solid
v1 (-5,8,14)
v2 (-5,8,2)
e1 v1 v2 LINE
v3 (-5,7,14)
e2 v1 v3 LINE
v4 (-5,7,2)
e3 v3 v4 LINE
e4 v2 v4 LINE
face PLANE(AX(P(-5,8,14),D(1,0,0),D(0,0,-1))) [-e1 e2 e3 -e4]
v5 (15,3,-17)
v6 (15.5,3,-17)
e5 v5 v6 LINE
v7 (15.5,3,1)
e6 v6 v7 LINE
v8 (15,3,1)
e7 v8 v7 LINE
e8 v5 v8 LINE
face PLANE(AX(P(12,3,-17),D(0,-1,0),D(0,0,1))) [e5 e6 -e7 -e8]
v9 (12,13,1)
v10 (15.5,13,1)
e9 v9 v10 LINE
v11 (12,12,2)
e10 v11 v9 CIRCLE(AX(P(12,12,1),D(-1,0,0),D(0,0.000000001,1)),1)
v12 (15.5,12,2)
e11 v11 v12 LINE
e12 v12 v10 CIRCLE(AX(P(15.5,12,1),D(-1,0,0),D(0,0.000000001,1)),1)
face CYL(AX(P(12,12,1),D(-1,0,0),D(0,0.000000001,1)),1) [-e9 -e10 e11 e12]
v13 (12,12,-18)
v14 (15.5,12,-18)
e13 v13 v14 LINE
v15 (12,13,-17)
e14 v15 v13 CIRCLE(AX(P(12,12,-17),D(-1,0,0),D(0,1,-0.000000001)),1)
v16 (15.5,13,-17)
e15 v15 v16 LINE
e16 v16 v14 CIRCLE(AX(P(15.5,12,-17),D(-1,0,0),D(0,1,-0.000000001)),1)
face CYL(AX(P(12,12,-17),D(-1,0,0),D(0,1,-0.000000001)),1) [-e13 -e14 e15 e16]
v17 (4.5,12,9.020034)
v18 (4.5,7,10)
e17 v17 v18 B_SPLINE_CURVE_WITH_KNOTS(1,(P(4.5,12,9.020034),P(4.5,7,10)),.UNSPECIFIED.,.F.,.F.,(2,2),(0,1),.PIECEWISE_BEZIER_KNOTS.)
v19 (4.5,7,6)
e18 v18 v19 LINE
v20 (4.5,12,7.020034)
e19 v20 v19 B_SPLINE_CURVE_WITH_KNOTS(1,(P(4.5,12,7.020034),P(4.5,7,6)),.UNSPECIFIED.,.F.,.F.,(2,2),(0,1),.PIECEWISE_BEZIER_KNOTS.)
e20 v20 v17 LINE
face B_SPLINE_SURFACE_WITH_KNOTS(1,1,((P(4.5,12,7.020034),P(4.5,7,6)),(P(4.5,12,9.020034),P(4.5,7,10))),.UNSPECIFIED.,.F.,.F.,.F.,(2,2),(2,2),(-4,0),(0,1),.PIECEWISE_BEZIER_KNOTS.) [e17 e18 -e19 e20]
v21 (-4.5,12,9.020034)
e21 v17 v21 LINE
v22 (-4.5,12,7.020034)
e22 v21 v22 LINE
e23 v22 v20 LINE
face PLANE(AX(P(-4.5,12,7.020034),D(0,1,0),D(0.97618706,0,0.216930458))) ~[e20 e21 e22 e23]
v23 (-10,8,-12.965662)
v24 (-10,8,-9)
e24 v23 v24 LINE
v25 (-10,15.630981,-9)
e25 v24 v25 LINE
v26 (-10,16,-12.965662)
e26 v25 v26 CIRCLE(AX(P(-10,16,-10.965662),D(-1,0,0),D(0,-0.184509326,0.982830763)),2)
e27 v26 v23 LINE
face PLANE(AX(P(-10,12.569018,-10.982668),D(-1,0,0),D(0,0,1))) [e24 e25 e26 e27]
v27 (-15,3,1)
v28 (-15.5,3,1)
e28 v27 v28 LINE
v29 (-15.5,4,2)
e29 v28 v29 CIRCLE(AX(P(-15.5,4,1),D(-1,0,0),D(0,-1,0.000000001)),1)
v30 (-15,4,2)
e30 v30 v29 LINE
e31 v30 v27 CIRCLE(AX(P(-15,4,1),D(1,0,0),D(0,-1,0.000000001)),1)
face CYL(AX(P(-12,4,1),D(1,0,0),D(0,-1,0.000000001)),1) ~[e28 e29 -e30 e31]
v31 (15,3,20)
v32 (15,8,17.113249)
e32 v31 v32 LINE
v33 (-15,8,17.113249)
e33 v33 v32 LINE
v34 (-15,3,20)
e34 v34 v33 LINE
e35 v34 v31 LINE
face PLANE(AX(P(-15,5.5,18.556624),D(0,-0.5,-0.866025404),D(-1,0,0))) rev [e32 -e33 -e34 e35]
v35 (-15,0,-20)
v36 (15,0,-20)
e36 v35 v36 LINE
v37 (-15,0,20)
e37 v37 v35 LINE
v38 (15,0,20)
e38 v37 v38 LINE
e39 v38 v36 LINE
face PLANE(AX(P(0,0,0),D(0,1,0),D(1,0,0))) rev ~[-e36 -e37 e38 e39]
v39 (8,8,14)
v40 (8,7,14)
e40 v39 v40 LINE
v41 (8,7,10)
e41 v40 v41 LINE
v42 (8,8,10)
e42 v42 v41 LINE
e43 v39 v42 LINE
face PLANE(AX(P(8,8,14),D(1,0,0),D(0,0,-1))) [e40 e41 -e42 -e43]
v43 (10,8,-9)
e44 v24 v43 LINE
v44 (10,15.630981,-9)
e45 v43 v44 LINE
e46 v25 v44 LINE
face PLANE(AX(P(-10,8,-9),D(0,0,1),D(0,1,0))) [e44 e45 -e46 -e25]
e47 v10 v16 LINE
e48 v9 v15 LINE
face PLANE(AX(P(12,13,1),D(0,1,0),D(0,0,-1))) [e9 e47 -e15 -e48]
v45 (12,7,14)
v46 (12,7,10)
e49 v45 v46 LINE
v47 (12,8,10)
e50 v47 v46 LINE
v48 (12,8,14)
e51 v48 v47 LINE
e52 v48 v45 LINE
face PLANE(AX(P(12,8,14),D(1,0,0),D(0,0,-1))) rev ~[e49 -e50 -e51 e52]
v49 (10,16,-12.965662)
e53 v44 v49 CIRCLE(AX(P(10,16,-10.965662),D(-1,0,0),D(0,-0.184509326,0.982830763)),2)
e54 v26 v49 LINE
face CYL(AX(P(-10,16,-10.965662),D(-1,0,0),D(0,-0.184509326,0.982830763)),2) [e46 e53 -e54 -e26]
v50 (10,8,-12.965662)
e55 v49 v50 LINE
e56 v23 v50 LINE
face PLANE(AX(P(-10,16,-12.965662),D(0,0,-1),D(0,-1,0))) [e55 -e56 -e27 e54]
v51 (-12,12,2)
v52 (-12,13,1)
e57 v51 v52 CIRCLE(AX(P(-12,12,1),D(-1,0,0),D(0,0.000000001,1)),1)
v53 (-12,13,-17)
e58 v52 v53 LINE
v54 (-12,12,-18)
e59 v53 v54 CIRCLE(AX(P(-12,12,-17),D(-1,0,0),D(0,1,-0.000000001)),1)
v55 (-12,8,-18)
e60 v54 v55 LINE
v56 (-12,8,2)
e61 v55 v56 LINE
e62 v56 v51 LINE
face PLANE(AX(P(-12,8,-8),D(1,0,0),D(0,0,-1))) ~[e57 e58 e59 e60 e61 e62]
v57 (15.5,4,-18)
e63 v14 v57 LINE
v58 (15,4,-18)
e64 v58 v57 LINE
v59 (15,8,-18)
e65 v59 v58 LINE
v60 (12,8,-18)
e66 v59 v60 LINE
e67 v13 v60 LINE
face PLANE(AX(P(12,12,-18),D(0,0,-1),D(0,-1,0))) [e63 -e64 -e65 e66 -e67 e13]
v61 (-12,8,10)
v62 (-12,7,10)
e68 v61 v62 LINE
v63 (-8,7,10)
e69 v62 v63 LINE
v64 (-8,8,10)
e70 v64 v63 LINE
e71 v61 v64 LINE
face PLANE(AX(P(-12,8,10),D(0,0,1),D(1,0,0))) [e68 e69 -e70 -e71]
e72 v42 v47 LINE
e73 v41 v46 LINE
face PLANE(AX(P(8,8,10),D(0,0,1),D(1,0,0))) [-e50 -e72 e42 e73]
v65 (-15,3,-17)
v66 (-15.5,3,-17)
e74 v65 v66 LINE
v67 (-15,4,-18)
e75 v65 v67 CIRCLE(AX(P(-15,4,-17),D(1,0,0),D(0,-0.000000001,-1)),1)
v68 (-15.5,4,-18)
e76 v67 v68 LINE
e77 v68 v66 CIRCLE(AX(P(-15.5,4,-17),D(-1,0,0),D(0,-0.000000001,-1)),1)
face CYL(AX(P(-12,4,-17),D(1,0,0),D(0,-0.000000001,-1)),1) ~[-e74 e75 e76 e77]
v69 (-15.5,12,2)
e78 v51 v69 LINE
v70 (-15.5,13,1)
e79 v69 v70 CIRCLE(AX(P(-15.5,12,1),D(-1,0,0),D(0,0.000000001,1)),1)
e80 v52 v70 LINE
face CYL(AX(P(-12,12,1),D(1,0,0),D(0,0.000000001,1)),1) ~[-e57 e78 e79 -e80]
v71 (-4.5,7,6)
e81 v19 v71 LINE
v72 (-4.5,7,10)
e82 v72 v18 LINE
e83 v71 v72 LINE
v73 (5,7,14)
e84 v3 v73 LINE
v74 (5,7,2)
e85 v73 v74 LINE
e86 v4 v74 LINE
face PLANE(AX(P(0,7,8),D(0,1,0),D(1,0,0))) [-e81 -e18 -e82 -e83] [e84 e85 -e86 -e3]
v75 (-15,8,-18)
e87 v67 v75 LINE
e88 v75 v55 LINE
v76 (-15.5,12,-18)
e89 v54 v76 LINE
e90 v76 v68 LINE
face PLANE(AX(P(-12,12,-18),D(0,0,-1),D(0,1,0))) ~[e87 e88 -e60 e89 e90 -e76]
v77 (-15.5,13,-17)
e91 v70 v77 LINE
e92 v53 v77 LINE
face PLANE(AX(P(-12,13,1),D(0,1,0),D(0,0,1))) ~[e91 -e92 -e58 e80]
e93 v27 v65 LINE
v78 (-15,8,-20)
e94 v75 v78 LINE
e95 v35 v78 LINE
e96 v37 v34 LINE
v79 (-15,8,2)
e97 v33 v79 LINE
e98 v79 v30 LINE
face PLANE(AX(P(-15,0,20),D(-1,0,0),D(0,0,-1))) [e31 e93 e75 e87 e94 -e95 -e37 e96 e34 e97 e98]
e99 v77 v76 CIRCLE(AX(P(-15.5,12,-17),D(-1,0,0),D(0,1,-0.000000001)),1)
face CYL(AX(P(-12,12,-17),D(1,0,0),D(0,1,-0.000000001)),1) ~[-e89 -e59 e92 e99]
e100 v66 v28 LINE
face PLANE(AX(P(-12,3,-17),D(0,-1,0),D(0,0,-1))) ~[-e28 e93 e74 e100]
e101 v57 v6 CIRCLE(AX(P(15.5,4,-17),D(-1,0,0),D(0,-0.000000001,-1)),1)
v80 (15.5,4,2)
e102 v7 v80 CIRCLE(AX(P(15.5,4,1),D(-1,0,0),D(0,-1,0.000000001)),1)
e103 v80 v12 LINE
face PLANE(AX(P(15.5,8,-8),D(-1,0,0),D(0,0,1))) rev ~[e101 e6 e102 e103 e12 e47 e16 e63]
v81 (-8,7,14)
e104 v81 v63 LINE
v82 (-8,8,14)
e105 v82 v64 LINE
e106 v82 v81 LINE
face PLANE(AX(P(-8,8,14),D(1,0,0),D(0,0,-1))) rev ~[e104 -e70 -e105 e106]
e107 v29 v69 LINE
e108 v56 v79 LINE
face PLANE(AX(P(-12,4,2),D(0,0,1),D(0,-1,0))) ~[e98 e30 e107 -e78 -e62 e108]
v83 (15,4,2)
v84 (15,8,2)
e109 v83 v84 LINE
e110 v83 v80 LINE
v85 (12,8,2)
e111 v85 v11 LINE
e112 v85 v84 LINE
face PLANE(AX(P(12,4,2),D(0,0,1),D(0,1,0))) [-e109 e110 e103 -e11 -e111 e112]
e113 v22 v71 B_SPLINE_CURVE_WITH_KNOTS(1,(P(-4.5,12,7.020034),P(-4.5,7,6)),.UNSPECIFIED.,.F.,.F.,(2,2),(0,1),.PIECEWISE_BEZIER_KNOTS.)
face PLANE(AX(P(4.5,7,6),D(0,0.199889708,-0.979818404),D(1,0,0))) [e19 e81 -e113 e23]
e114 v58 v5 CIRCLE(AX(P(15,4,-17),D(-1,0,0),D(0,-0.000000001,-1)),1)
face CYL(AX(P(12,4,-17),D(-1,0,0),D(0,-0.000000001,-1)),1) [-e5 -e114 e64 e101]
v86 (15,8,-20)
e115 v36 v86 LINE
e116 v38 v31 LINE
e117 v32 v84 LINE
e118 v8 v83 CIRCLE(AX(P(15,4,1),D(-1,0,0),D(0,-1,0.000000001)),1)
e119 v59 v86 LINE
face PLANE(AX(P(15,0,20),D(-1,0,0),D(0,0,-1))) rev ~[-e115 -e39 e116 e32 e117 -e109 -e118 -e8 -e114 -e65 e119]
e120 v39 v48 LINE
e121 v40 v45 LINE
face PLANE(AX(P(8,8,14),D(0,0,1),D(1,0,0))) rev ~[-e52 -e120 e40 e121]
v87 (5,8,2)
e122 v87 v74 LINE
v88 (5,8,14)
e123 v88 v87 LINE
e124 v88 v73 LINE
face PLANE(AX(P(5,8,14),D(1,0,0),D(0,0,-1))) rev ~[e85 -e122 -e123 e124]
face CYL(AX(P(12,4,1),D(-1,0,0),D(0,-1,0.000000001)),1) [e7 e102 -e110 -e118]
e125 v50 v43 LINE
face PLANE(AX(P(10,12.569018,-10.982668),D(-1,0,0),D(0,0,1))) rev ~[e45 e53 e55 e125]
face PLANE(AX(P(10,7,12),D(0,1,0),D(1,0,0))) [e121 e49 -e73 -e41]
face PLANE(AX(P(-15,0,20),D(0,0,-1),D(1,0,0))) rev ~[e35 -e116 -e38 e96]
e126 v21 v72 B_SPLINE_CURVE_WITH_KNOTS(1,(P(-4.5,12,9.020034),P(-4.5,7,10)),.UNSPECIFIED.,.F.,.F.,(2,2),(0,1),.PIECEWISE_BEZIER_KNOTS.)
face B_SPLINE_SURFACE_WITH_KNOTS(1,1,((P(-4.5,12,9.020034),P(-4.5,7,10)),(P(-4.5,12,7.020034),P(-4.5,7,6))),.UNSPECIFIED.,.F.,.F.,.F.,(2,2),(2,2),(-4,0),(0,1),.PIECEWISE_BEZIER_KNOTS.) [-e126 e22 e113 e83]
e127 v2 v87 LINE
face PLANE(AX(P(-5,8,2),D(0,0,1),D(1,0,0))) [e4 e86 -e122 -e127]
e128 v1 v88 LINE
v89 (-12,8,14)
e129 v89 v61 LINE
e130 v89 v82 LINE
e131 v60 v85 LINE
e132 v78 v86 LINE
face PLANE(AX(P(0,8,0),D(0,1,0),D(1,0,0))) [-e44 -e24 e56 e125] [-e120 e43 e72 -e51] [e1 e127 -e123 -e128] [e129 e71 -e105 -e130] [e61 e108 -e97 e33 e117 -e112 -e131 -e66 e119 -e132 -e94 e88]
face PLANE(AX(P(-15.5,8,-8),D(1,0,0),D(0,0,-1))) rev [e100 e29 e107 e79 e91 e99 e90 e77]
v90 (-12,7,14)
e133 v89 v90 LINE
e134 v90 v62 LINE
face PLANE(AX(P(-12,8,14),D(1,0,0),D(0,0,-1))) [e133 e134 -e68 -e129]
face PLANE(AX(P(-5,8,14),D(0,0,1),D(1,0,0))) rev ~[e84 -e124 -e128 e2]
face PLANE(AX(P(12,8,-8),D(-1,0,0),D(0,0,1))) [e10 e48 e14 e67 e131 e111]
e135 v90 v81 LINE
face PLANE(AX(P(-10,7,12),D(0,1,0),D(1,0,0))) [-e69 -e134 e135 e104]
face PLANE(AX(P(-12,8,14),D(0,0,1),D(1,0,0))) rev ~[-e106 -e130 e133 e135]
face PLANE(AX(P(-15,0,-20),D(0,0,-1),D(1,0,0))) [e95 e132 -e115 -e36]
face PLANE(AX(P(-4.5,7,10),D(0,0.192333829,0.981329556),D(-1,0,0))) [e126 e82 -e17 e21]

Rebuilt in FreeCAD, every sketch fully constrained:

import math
import FreeCAD as App
import Part
import Sketcher
Q = App.Units.Quantity


def edges_at(feature, points):
    """Names of the edges that pass closest to the given points."""
    edges = feature.Shape.Edges
    near = lambda p: min(range(len(edges)), key=lambda i: edges[i].distToShape(Part.Vertex(*p))[0])
    return sorted({f"Edge{near(p) + 1}" for p in points})


def add_polygon(sketch, points):
    """Adds a closed chain of lines whose ends are joined by coincident constraints."""
    first, n = sketch.GeometryCount, len(points)
    for a, b in zip(points, points[1:] + points[:1]):
        sketch.addGeometry(Part.LineSegment(App.Vector(*a, 0), App.Vector(*b, 0)), False)
    for i in range(n):
        sketch.addConstraint(Sketcher.Constraint("Coincident", first + i, 2, first + (i + 1) % n, 1))

doc = App.newDocument("Part")
params = doc.addObject("Spreadsheet::Sheet", "Params")
for row, (alias, value) in enumerate([
    ("sketch1_width", "30 mm"),
    ("sketch1_height", "40 mm"),
    ("pad1_length", "8 mm"),
    ("chamfer_size", "5 mm"),
    ("chamfer_size2", "2.886751 mm"),
    ("sketch2_radius", "1 mm"),
    ("sketch2_width", "8 mm"),
    ("sketch2_height", "18 mm"),
    ("pad2_length", "3.5 mm"),
    ("sketch3_radius", "2 mm"),
    ("sketch3_width", "8 mm"),
    ("pad3_length", "10 mm"),
    ("pad3_length2", "10 mm"),
    ("sketch4_width", "4 mm"),
    ("pocket1_length", "1 mm"),
    ("sketch5_width", "10 mm"),
    ("sketch5_height", "12 mm"),
    ("pocket2_length", "1 mm"),
    ("sketch6_width", "9 mm"),
    ("sketch6_height", "2 mm"),
    ("sketch7_width", "9 mm"),
    ("sketch7_height", "4 mm"),
], start=1):
    params.set(f"A{row}", alias)
    params.set(f"B{row}", "=" + value)
    params.setAlias(f"B{row}", alias)

body = doc.addObject("PartDesign::Body", "Body")

# Sketch on XZ plane
sketch1 = body.newObject("Sketcher::SketchObject", "Sketch")
sketch1.AttachmentSupport = (doc.getObject("XZ_Plane"), [""])
sketch1.MapMode = "FlatFace"
add_polygon(sketch1, [(-15, -20), (-15, 20), (15, 20), (15, -20)])  # lines 0-3
sketch1.addConstraint(Sketcher.Constraint("Vertical", 0))
sketch1.addConstraint(Sketcher.Constraint("Horizontal", 1))
sketch1.addConstraint(Sketcher.Constraint("Vertical", 2))
sketch1.addConstraint(Sketcher.Constraint("Horizontal", 3))
sketch1.addConstraint(Sketcher.Constraint("Symmetric", 0, 2, 2, 2, -1, 1))
sketch1.addConstraint(Sketcher.Constraint("DistanceX", 1, 1, 1, 2, Q("30 mm")))
sketch1.addConstraint(Sketcher.Constraint("DistanceY", 0, 1, 0, 2, Q("40 mm")))
sketch1.setExpression("Constraints[9]", "Params.sketch1_width")
sketch1.setExpression("Constraints[10]", "Params.sketch1_height")
pad1 = body.newObject("PartDesign::Pad", "Pad")
pad1.Profile = sketch1
pad1.setExpression("Length", "Params.pad1_length")
pad1.Reversed = True
doc.recompute()

chamfer = body.newObject("PartDesign::Chamfer", "Chamfer")
chamfer.Base = (pad1, edges_at(pad1, [(0, 8, 20)]))
chamfer.ChamferType = "Two distances"
chamfer.setExpression("Size", "Params.chamfer_size")
chamfer.setExpression("Size2", "Params.chamfer_size2")

# Sketch on YZ plane
sketch2 = body.newObject("Sketcher::SketchObject", "Sketch001")
sketch2.AttachmentSupport = (doc.getObject("YZ_Plane"), [""])
sketch2.MapMode = "FlatFace"
sketch2.AttachmentOffset = App.Placement(App.Vector(0, 0, 12), App.Rotation())
sketch2.addGeometry(Part.LineSegment(App.Vector(4, -18, 0), App.Vector(12, -18, 0)), False)
sketch2.addGeometry(Part.ArcOfCircle(Part.Circle(App.Vector(12, -17, 0), App.Vector(0, 0, 1), 1), math.radians(-90), math.radians(0)), False)
sketch2.addGeometry(Part.LineSegment(App.Vector(13, -17, 0), App.Vector(13, 1, 0)), False)
sketch2.addGeometry(Part.ArcOfCircle(Part.Circle(App.Vector(12, 1, 0), App.Vector(0, 0, 1), 1), math.radians(0), math.radians(90)), False)
sketch2.addGeometry(Part.LineSegment(App.Vector(12, 2, 0), App.Vector(4, 2, 0)), False)
sketch2.addGeometry(Part.ArcOfCircle(Part.Circle(App.Vector(4, 1, 0), App.Vector(0, 0, 1), 1), math.radians(90), math.radians(180)), False)
sketch2.addGeometry(Part.LineSegment(App.Vector(3, 1, 0), App.Vector(3, -17, 0)), False)
sketch2.addGeometry(Part.ArcOfCircle(Part.Circle(App.Vector(4, -17, 0), App.Vector(0, 0, 1), 1), math.radians(-180), math.radians(-90)), False)
sketch2.addConstraint(Sketcher.Constraint("Tangent", 0, 2, 1, 1))
sketch2.addConstraint(Sketcher.Constraint("Tangent", 1, 2, 2, 1))
sketch2.addConstraint(Sketcher.Constraint("Tangent", 2, 2, 3, 1))
sketch2.addConstraint(Sketcher.Constraint("Tangent", 3, 2, 4, 1))
sketch2.addConstraint(Sketcher.Constraint("Tangent", 4, 2, 5, 1))
sketch2.addConstraint(Sketcher.Constraint("Tangent", 5, 2, 6, 1))
sketch2.addConstraint(Sketcher.Constraint("Tangent", 6, 2, 7, 1))
sketch2.addConstraint(Sketcher.Constraint("Tangent", 7, 2, 0, 1))
sketch2.addConstraint(Sketcher.Constraint("Horizontal", 0))
sketch2.addConstraint(Sketcher.Constraint("Vertical", 2))
sketch2.addConstraint(Sketcher.Constraint("Horizontal", 4))
sketch2.addConstraint(Sketcher.Constraint("Vertical", 6))
sketch2.addConstraint(Sketcher.Constraint("Equal", 1, 3))
sketch2.addConstraint(Sketcher.Constraint("Equal", 3, 5))
sketch2.addConstraint(Sketcher.Constraint("Equal", 5, 7))
sketch2.addConstraint(Sketcher.Constraint("Radius", 1, Q("1 mm")))
sketch2.addConstraint(Sketcher.Constraint("DistanceX", 0, 1, 0, 2, Q("8 mm")))
sketch2.addConstraint(Sketcher.Constraint("DistanceY", 2, 1, 2, 2, Q("18 mm")))
sketch2.addConstraint(Sketcher.Constraint("DistanceX", -1, 1, 1, 3, Q("12 mm")))
sketch2.addConstraint(Sketcher.Constraint("DistanceY", 1, 3, -1, 1, Q("17 mm")))
sketch2.setExpression("Constraints[15]", "Params.sketch2_radius")
sketch2.setExpression("Constraints[16]", "Params.sketch2_width")
sketch2.setExpression("Constraints[17]", "Params.sketch2_height")
pad2 = body.newObject("PartDesign::Pad", "Pad001")
pad2.Profile = sketch2
pad2.setExpression("Length", "Params.pad2_length")
doc.recompute()

mirrored = body.newObject("PartDesign::Mirrored", "Mirrored")
mirrored.Originals = [pad2]
mirrored.MirrorPlane = (doc.getObject("YZ_Plane"), [""])
body.Tip = mirrored

# Sketch on YZ plane
sketch3 = body.newObject("Sketcher::SketchObject", "Sketch002")
sketch3.AttachmentSupport = (doc.getObject("YZ_Plane"), [""])
sketch3.MapMode = "FlatFace"
sketch3.addGeometry(Part.LineSegment(App.Vector(15.630981, -9, 0), App.Vector(8, -9, 0)), False)
sketch3.addGeometry(Part.LineSegment(App.Vector(8, -9, 0), App.Vector(8, -12.965662, 0)), False)
sketch3.addGeometry(Part.LineSegment(App.Vector(8, -12.965662, 0), App.Vector(16, -12.965662, 0)), False)
sketch3.addGeometry(Part.ArcOfCircle(Part.Circle(App.Vector(16, -10.965662, 0), App.Vector(0, 0, 1), 2), math.radians(-90), math.radians(100.632526)), False)
sketch3.addConstraint(Sketcher.Constraint("Coincident", 0, 2, 1, 1))
sketch3.addConstraint(Sketcher.Constraint("Coincident", 1, 2, 2, 1))
sketch3.addConstraint(Sketcher.Constraint("Tangent", 2, 2, 3, 1))
sketch3.addConstraint(Sketcher.Constraint("Coincident", 3, 2, 0, 1))
sketch3.addConstraint(Sketcher.Constraint("Horizontal", 0))
sketch3.addConstraint(Sketcher.Constraint("Vertical", 1))
sketch3.addConstraint(Sketcher.Constraint("Horizontal", 2))
sketch3.addConstraint(Sketcher.Constraint("Radius", 3, Q("2 mm")))
sketch3.addConstraint(Sketcher.Constraint("DistanceX", 2, 1, 2, 2, Q("8 mm")))
sketch3.addConstraint(Sketcher.Constraint("DistanceX", -1, 1, 3, 3, Q("16 mm")))
sketch3.addConstraint(Sketcher.Constraint("DistanceY", 0, 2, -1, 1, Q("9 mm")))
sketch3.addConstraint(Sketcher.Constraint("DistanceX", 0, 2, 0, 1, Q("7.630981 mm")))
sketch3.setExpression("Constraints[7]", "Params.sketch3_radius")
sketch3.setExpression("Constraints[8]", "Params.sketch3_width")
pad3 = body.newObject("PartDesign::Pad", "Pad002")
pad3.Profile = sketch3
pad3.Type = "TwoLengths"
pad3.setExpression("Length", "Params.pad3_length")
pad3.setExpression("Length2", "Params.pad3_length2")

# Sketch on XZ plane
sketch4 = body.newObject("Sketcher::SketchObject", "Sketch003")
sketch4.AttachmentSupport = (doc.getObject("XZ_Plane"), [""])
sketch4.MapMode = "FlatFace"
sketch4.AttachmentOffset = App.Placement(App.Vector(0, 0, -8), App.Rotation())
add_polygon(sketch4, [(-12, 10), (-12, 14), (-8, 14), (-8, 10)])  # lines 0-3
add_polygon(sketch4, [(8, 10), (8, 14), (12, 14), (12, 10)])  # lines 4-7
sketch4.addConstraint(Sketcher.Constraint("Vertical", 0))
sketch4.addConstraint(Sketcher.Constraint("Horizontal", 1))
sketch4.addConstraint(Sketcher.Constraint("Vertical", 2))
sketch4.addConstraint(Sketcher.Constraint("Horizontal", 3))
sketch4.addConstraint(Sketcher.Constraint("Vertical", 4))
sketch4.addConstraint(Sketcher.Constraint("Horizontal", 5))
sketch4.addConstraint(Sketcher.Constraint("Vertical", 6))
sketch4.addConstraint(Sketcher.Constraint("Horizontal", 7))
sketch4.addConstraint(Sketcher.Constraint("Symmetric", 1, 2, 4, 2, -2))
sketch4.addConstraint(Sketcher.Constraint("Symmetric", 3, 2, 6, 2, -2))
sketch4.addConstraint(Sketcher.Constraint("Equal", 7, 0))
sketch4.addConstraint(Sketcher.Constraint("DistanceX", 1, 1, 1, 2, Q("4 mm")))
sketch4.addConstraint(Sketcher.Constraint("DistanceX", 0, 2, -1, 1, Q("12 mm")))
sketch4.addConstraint(Sketcher.Constraint("DistanceY", -1, 1, 0, 2, Q("14 mm")))
sketch4.setExpression("Constraints[19]", "Params.sketch4_width")
pocket1 = body.newObject("PartDesign::Pocket", "Pocket")
pocket1.Profile = sketch4
pocket1.setExpression("Length", "Params.pocket1_length")
pocket1.Reversed = True

# Sketch on XZ plane
sketch5 = body.newObject("Sketcher::SketchObject", "Sketch004")
sketch5.AttachmentSupport = (doc.getObject("XZ_Plane"), [""])
sketch5.MapMode = "FlatFace"
sketch5.AttachmentOffset = App.Placement(App.Vector(0, 0, -8), App.Rotation())
add_polygon(sketch5, [(-5, 2), (-5, 14), (5, 14), (5, 2)])  # lines 0-3
sketch5.addConstraint(Sketcher.Constraint("Vertical", 0))
sketch5.addConstraint(Sketcher.Constraint("Horizontal", 1))
sketch5.addConstraint(Sketcher.Constraint("Vertical", 2))
sketch5.addConstraint(Sketcher.Constraint("Horizontal", 3))
sketch5.addConstraint(Sketcher.Constraint("DistanceX", 1, 1, 1, 2, Q("10 mm")))
sketch5.addConstraint(Sketcher.Constraint("DistanceY", 0, 1, 0, 2, Q("12 mm")))
sketch5.addConstraint(Sketcher.Constraint("DistanceX", 0, 2, -1, 1, Q("5 mm")))
sketch5.addConstraint(Sketcher.Constraint("DistanceY", -1, 1, 0, 2, Q("14 mm")))
sketch5.setExpression("Constraints[8]", "Params.sketch5_width")
sketch5.setExpression("Constraints[9]", "Params.sketch5_height")
pocket2 = body.newObject("PartDesign::Pocket", "Pocket001")
pocket2.Profile = sketch5
pocket2.setExpression("Length", "Params.pocket2_length")
pocket2.Reversed = True

# Sketch on XZ plane
sketch6 = body.newObject("Sketcher::SketchObject", "Sketch005")
sketch6.AttachmentSupport = (doc.getObject("XZ_Plane"), [""])
sketch6.MapMode = "FlatFace"
sketch6.AttachmentOffset = App.Placement(App.Vector(0, 0, -12), App.Rotation())
add_polygon(sketch6, [(4.5, 7.020034), (-4.5, 7.020034), (-4.5, 9.020034), (4.5, 9.020034)])  # lines 0-3
sketch6.addConstraint(Sketcher.Constraint("Horizontal", 0))
sketch6.addConstraint(Sketcher.Constraint("Vertical", 1))
sketch6.addConstraint(Sketcher.Constraint("Horizontal", 2))
sketch6.addConstraint(Sketcher.Constraint("Vertical", 3))
sketch6.addConstraint(Sketcher.Constraint("DistanceX", 0, 2, 0, 1, Q("9 mm")))
sketch6.addConstraint(Sketcher.Constraint("DistanceY", 1, 1, 1, 2, Q("2 mm")))
sketch6.addConstraint(Sketcher.Constraint("DistanceX", 0, 2, -1, 1, Q("4.5 mm")))
sketch6.addConstraint(Sketcher.Constraint("DistanceY", -1, 1, 0, 2, Q("7.020034 mm")))
sketch6.setExpression("Constraints[8]", "Params.sketch6_width")
sketch6.setExpression("Constraints[9]", "Params.sketch6_height")

# Sketch on XZ plane
sketch7 = body.newObject("Sketcher::SketchObject", "Sketch006")
sketch7.AttachmentSupport = (doc.getObject("XZ_Plane"), [""])
sketch7.MapMode = "FlatFace"
sketch7.AttachmentOffset = App.Placement(App.Vector(0, 0, -7), App.Rotation())
add_polygon(sketch7, [(-4.5, 10), (4.5, 10), (4.5, 6), (-4.5, 6)])  # lines 0-3
sketch7.addConstraint(Sketcher.Constraint("Horizontal", 0))
sketch7.addConstraint(Sketcher.Constraint("Vertical", 1))
sketch7.addConstraint(Sketcher.Constraint("Horizontal", 2))
sketch7.addConstraint(Sketcher.Constraint("Vertical", 3))
sketch7.addConstraint(Sketcher.Constraint("DistanceX", 0, 1, 0, 2, Q("9 mm")))
sketch7.addConstraint(Sketcher.Constraint("DistanceY", 1, 2, 1, 1, Q("4 mm")))
sketch7.addConstraint(Sketcher.Constraint("DistanceY", -1, 1, 0, 2, Q("10 mm")))
sketch7.addConstraint(Sketcher.Constraint("DistanceX", -1, 1, 0, 2, Q("4.5 mm")))
sketch7.setExpression("Constraints[8]", "Params.sketch7_width")
sketch7.setExpression("Constraints[9]", "Params.sketch7_height")

additiveloft = body.newObject("PartDesign::AdditiveLoft", "AdditiveLoft")
additiveloft.Profile = sketch6
additiveloft.Sections = [sketch7]

doc.recompute()
